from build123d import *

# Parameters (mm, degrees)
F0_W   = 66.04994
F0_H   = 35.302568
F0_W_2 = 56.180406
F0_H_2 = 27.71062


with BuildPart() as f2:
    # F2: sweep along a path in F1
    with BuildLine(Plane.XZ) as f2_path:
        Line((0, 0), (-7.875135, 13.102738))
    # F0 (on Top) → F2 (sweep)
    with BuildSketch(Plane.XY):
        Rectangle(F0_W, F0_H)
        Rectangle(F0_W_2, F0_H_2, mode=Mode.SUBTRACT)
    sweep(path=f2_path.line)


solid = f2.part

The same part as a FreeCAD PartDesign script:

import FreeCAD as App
import Part
import Sketcher
from FreeCAD import Vector
Q = App.Units.Quantity

doc = App.newDocument("Part")
body = doc.addObject("PartDesign::Body", "Body")

# Sketch on XY plane
sketch1 = body.newObject("Sketcher::SketchObject", "Sketch")
sketch1.AttachmentSupport = (doc.getObject("XY_Plane"), [""])
sketch1.MapMode = "FlatFace"
sketch1.addGeometry([
    Part.LineSegment(Vector(-33.02497, 17.651284, 0), Vector(-33.02497, -17.651284, 0)),  # 0
    Part.LineSegment(Vector(-33.02497, -17.651284, 0), Vector(33.02497, -17.651284, 0)),  # 1
    Part.LineSegment(Vector(33.02497, -17.651284, 0), Vector(33.02497, 17.651284, 0)),  # 2
    Part.LineSegment(Vector(33.02497, 17.651284, 0), Vector(-33.02497, 17.651284, 0)),  # 3
    Part.LineSegment(Vector(28.090203, -13.85531, 0), Vector(-28.090203, -13.85531, 0)),  # 4
    Part.LineSegment(Vector(-28.090203, -13.85531, 0), Vector(-28.090203, 13.85531, 0)),  # 5
    Part.LineSegment(Vector(-28.090203, 13.85531, 0), Vector(28.090203, 13.85531, 0)),  # 6
    Part.LineSegment(Vector(28.090203, 13.85531, 0), Vector(28.090203, -13.85531, 0)),  # 7
], False)
sketch1.addConstraint([
    Sketcher.Constraint("Coincident", 0, 2, 1, 1),
    Sketcher.Constraint("Coincident", 1, 2, 2, 1),
    Sketcher.Constraint("Coincident", 2, 2, 3, 1),
    Sketcher.Constraint("Coincident", 3, 2, 0, 1),
    Sketcher.Constraint("Coincident", 4, 2, 5, 1),
    Sketcher.Constraint("Coincident", 5, 2, 6, 1),
    Sketcher.Constraint("Coincident", 6, 2, 7, 1),
    Sketcher.Constraint("Coincident", 7, 2, 4, 1),
    Sketcher.Constraint("Vertical", 0),
    Sketcher.Constraint("Horizontal", 1),
    Sketcher.Constraint("Vertical", 2),
    Sketcher.Constraint("Horizontal", 3),
    Sketcher.Constraint("Horizontal", 4),
    Sketcher.Constraint("Vertical", 5),
    Sketcher.Constraint("Horizontal", 6),
    Sketcher.Constraint("Vertical", 7),
    Sketcher.Constraint("Symmetric", 0, 2, 2, 2, -1, 1),
    Sketcher.Constraint("Symmetric", 4, 2, 6, 2, -1, 1),
    Sketcher.Constraint("DistanceX", 1, 1, 1, 2, Q("66.04994 mm")),
    Sketcher.Constraint("DistanceY", 5, 1, 5, 2, Q("27.71062 mm")),
    Sketcher.Constraint("DistanceX", 4, 2, 4, 1, Q("56.180406 mm")),
    Sketcher.Constraint("DistanceY", 0, 2, 0, 1, Q("35.302568 mm")),
])

# Sketch on an angled plane
sketch2 = body.newObject("Sketcher::SketchObject", "Sketch001")
sketch2.Placement = App.Placement(Vector(0, 0, 0), App.Rotation(Vector(-0.515144564, 0, 0.857103307), Vector(0, 1.000000001, 0), Vector(-0.857103307, 0, -0.515144564), "ZXY"))
sketch2.addGeometry(Part.LineSegment(Vector(0, 0, 0), Vector(15.287233, 0, 0)), False)
sketch2.addConstraint([
    Sketcher.Constraint("Horizontal", 0),
    Sketcher.Constraint("Coincident", 0, 1, -1, 1),
    Sketcher.Constraint("DistanceX", 0, 1, 0, 2, Q("15.287233 mm")),
])
doc.recompute()

additivepipe = body.newObject("PartDesign::AdditivePipe", "AdditivePipe")
additivepipe.Profile = sketch1
additivepipe.Spine = (sketch2, ["Edge1"])

doc.recompute()
